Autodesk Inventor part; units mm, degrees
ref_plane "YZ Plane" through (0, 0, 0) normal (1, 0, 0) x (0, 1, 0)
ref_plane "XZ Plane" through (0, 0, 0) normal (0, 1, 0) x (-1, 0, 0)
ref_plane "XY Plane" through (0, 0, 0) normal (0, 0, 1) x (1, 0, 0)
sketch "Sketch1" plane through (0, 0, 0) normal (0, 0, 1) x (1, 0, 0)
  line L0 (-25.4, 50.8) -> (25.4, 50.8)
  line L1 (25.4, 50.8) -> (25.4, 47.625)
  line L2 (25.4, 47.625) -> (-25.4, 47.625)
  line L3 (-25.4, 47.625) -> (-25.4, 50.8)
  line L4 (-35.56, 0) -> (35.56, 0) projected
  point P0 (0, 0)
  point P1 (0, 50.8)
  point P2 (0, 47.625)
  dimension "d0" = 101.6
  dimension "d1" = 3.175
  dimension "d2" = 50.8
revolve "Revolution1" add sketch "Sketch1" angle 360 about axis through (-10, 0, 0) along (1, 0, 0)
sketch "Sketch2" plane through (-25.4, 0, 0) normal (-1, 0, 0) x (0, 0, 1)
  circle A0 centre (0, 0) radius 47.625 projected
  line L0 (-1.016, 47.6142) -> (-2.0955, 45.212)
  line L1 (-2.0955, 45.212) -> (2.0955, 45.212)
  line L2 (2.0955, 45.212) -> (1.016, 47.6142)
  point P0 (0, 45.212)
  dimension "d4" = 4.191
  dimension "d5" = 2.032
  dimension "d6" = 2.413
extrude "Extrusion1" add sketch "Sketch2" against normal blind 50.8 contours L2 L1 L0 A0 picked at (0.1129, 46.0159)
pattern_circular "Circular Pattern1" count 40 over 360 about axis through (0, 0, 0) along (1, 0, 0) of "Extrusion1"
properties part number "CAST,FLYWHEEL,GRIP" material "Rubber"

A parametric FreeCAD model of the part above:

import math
import FreeCAD as App
import Part
import Sketcher
Q = App.Units.Quantity

doc = App.newDocument("Part")
body = doc.addObject("PartDesign::Body", "Body")

# Sketch on XY plane
sketch1 = body.newObject("Sketcher::SketchObject", "Sketch")
sketch1.AttachmentSupport = (doc.getObject("XY_Plane"), [""])
sketch1.MapMode = "FlatFace"
sketch1.addGeometry([
    Part.LineSegment(App.Vector(25.4, 50.8, 0), App.Vector(-25.4, 50.8, 0)),
    Part.LineSegment(App.Vector(-25.4, 50.8, 0), App.Vector(-25.4, 47.6, 0)),
    Part.LineSegment(App.Vector(-25.4, 47.6, 0), App.Vector(25.4, 47.6, 0)),
    Part.LineSegment(App.Vector(25.4, 47.6, 0), App.Vector(25.4, 50.8, 0)),
], False)
sketch1.addConstraint([
    Sketcher.Constraint("Coincident", 0, 2, 1, 1),
    Sketcher.Constraint("Coincident", 1, 2, 2, 1),
    Sketcher.Constraint("Coincident", 2, 2, 3, 1),
    Sketcher.Constraint("Coincident", 3, 2, 0, 1),
    Sketcher.Constraint("Horizontal", 0),
    Sketcher.Constraint("Vertical", 1),
    Sketcher.Constraint("Horizontal", 2),
    Sketcher.Constraint("Vertical", 3),
    Sketcher.Constraint("DistanceX", 0, 2, 0, 1, Q("2 in")),
    Sketcher.Constraint("DistanceY", -1, 1, 0, 2, Q("2 in")),
    Sketcher.Constraint("DistanceY", 1, 2, 1, 1, Q("0.125 in")),
    Sketcher.Constraint("DistanceX", 0, 2, -1, 1, Q("1 in")),
])
revolution = body.newObject("PartDesign::Revolution", "Revolution")
revolution.Profile = sketch1
revolution.ReferenceAxis = (sketch1, ["H_Axis"])
revolution.Angle = 360

# Sketch on YZ plane
sketch2 = body.newObject("Sketcher::SketchObject", "Sketch001")
sketch2.AttachmentSupport = (doc.getObject("YZ_Plane"), [""])
sketch2.MapMode = "FlatFace"
sketch2.AttachmentOffset = App.Placement(App.Vector(0, 0, -1 * 25.4), App.Rotation())
sketch2.addGeometry([
    Part.LineSegment(App.Vector(45.2, 2.1, 0), App.Vector(47.6, 1, 0)),
    Part.ArcOfCircle(Part.Circle(App.Vector(0, 0, 0), App.Vector(0, 0, 1), 47.6), math.radians(-1.22), math.radians(1.22)),
    Part.LineSegment(App.Vector(47.6, -1, 0), App.Vector(45.2, -2.1, 0)),
    Part.LineSegment(App.Vector(45.2, -2.1, 0), App.Vector(45.2, 2.1, 0)),
], False)
sketch2.addConstraint([
    Sketcher.Constraint("Coincident", 0, 2, 1, 2),
    Sketcher.Constraint("Coincident", 1, 1, 2, 1),
    Sketcher.Constraint("Coincident", 2, 2, 3, 1),
    Sketcher.Constraint("Coincident", 3, 2, 0, 1),
    Sketcher.Constraint("Vertical", 3),
    Sketcher.Constraint("Coincident", 1, 3, -1, 1),
    Sketcher.Constraint("Vertical", 0, 2, 1, 1),
    Sketcher.Constraint("Equal", 0, 2),
    Sketcher.Constraint("DistanceY", 3, 1, 3, 2, Q("0.165 in")),
    Sketcher.Constraint("DistanceY", 1, 1, 0, 2, Q("0.08 in")),
    Sketcher.Constraint("Radius", 1, Q("1.875 in")),
    Sketcher.Constraint("DistanceX", -1, 1, 2, 2, Q("1.78 in")),
])
pad1 = body.newObject("PartDesign::Pad", "Pad")
pad1.Profile = sketch2
pad1.Length = Q("2 in")
doc.recompute()

polarpattern = body.newObject("PartDesign::PolarPattern", "PolarPattern")
polarpattern.Originals = [pad1]
polarpattern.Axis = (doc.getObject("X_Axis"), [""])
polarpattern.Angle = 360
polarpattern.Occurrences = 40
body.Tip = polarpattern

doc.recompute()
